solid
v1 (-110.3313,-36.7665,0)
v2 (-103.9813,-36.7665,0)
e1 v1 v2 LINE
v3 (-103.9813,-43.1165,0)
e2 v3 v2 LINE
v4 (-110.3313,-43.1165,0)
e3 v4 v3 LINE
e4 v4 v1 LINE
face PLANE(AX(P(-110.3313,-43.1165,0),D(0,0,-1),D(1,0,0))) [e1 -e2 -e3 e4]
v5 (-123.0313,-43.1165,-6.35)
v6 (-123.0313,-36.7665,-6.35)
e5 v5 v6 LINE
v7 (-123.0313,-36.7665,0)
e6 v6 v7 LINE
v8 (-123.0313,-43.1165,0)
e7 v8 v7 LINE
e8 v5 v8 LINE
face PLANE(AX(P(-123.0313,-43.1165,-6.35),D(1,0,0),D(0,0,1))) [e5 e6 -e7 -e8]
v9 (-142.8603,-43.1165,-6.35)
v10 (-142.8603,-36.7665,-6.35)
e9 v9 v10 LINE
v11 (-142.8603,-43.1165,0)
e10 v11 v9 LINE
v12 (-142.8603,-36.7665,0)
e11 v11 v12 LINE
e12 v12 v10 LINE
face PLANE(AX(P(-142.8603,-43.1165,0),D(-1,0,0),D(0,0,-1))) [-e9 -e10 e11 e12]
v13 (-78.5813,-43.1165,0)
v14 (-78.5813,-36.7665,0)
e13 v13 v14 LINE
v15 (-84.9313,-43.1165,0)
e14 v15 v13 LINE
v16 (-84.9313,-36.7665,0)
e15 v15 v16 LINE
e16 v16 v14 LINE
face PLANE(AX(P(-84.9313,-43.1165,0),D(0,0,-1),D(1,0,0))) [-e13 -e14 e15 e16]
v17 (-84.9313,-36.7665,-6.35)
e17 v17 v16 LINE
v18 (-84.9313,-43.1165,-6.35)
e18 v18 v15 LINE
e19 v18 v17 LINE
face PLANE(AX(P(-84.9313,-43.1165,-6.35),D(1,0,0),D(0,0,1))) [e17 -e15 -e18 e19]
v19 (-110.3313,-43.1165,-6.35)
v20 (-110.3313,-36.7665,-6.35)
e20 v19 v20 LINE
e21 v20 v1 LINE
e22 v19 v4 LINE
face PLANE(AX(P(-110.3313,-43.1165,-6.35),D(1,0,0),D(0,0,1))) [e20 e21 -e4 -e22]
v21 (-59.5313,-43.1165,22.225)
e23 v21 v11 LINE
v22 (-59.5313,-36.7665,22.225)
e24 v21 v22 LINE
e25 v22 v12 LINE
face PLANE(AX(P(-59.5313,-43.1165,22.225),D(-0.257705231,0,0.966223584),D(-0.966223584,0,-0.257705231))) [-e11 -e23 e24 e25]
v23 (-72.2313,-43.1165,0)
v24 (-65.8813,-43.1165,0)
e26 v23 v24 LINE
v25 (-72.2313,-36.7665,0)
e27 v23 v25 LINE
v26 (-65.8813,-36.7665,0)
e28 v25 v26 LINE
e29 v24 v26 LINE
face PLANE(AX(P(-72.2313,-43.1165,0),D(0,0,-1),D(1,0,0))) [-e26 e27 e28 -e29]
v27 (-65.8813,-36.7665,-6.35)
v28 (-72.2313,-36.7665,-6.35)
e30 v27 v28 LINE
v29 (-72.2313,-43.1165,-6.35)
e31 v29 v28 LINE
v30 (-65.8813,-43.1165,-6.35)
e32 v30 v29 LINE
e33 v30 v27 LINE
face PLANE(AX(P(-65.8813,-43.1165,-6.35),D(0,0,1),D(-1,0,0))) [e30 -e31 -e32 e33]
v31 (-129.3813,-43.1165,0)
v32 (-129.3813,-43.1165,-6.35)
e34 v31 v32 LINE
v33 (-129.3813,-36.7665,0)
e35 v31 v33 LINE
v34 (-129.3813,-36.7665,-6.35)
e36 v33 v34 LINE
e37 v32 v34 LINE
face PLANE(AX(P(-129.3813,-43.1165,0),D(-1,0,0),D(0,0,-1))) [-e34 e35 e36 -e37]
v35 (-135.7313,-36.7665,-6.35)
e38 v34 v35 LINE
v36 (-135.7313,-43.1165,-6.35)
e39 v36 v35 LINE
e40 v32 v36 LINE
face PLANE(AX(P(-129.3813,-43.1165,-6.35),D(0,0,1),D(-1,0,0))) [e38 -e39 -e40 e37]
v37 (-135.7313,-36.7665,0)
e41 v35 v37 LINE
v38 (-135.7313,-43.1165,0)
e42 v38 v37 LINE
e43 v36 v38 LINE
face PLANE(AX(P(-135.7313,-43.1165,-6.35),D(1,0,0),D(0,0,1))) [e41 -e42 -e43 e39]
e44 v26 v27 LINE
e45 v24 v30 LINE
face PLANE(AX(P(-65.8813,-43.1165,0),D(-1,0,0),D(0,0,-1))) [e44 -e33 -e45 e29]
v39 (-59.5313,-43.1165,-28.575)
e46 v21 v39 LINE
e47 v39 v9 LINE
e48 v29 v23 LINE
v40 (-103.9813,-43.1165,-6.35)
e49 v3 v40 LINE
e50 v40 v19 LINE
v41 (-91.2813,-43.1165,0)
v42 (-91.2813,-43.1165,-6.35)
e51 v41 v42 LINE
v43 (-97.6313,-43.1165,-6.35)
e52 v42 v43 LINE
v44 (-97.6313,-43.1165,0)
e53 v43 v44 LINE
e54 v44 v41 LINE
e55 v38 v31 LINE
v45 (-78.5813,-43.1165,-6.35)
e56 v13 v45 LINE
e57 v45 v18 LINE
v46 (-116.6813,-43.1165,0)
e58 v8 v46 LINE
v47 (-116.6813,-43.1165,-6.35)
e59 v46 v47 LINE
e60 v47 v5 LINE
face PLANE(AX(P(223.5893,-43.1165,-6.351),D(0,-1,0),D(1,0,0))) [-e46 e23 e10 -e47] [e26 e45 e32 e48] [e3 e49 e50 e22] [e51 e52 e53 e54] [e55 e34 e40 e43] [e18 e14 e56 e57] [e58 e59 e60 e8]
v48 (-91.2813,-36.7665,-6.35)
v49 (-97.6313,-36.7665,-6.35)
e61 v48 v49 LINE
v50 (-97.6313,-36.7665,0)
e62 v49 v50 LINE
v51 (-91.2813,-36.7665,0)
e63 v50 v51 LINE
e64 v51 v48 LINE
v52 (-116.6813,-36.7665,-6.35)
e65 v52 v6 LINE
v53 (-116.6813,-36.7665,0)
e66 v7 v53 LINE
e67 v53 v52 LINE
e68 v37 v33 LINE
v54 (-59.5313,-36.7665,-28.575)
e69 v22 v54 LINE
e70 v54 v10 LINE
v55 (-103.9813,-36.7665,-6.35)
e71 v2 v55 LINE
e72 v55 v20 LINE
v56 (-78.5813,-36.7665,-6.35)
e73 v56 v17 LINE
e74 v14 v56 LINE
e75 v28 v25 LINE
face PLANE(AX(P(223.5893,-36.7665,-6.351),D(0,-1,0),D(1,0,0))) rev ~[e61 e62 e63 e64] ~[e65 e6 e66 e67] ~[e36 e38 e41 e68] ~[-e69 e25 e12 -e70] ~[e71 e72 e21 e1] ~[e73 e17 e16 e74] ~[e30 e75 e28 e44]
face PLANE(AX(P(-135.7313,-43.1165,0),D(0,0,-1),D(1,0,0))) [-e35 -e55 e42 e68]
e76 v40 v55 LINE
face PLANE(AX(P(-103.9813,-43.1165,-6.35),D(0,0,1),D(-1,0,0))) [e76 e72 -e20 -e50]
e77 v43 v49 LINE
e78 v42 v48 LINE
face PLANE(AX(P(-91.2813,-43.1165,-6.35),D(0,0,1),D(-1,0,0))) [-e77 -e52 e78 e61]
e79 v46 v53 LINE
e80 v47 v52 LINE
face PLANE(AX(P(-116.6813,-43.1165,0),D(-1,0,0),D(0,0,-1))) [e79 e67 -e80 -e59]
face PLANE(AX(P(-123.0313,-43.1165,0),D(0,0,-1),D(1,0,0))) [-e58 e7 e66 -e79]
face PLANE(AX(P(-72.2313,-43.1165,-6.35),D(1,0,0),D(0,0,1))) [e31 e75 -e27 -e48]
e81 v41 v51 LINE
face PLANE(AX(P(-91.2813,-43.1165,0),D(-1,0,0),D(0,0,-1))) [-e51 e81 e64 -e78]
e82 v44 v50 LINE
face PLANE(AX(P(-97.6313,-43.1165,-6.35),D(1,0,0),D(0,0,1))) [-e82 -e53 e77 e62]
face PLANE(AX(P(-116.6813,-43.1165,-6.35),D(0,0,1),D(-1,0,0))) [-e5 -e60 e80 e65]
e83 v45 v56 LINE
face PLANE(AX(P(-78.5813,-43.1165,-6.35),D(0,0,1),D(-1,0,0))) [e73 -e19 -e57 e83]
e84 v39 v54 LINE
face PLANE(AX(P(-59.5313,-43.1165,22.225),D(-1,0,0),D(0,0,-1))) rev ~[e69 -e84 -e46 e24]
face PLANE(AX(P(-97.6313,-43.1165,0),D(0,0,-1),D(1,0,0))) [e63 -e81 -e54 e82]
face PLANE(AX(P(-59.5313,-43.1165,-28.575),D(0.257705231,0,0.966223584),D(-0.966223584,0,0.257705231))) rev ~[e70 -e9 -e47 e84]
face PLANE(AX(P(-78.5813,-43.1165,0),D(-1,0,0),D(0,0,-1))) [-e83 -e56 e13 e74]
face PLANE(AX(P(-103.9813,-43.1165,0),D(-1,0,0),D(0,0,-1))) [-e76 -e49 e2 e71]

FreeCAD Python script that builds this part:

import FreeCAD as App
import Part
import Sketcher
Q = App.Units.Quantity

doc = App.newDocument("Part")
params = doc.addObject("Spreadsheet::Sheet", "Params")
for row, (alias, value) in enumerate([
    ("sketch1_height", "2 in"),
    ("sketch1_width", "0.25 in"),
    ("pad1_length", "0.25 in"),
], start=1):
    params.set(f"A{row}", alias)
    params.set(f"B{row}", "=" + value)
    params.setAlias(f"B{row}", alias)

body = doc.addObject("PartDesign::Body", "Body")

# Sketch on XZ plane
sketch1 = body.newObject("Sketcher::SketchObject", "Sketch")
sketch1.AttachmentSupport = (doc.getObject("XZ_Plane"), [""])
sketch1.MapMode = "FlatFace"
sketch1.AttachmentOffset = App.Placement(App.Vector(0, 0, 1.6975 * 25.4), App.Rotation())
sketch1.addGeometry(Part.LineSegment(App.Vector(-60, -29, 0), App.Vector(-60, 22, 0)), False)
sketch1.addGeometry(Part.LineSegment(App.Vector(-60, 22, 0), App.Vector(-143, 0, 0)), False)
sketch1.addGeometry(Part.LineSegment(App.Vector(-143, 0, 0), App.Vector(-143, -6, 0)), False)
sketch1.addGeometry(Part.LineSegment(App.Vector(-143, -6, 0), App.Vector(-60, -29, 0)), False)
sketch1.addGeometry(Part.LineSegment(App.Vector(-129, 0, 0), App.Vector(-129, -6, 0)), False)
sketch1.addGeometry(Part.LineSegment(App.Vector(-129, -6, 0), App.Vector(-136, -6, 0)), False)
sketch1.addGeometry(Part.LineSegment(App.Vector(-136, -6, 0), App.Vector(-136, 0, 0)), False)
sketch1.addGeometry(Part.LineSegment(App.Vector(-136, 0, 0), App.Vector(-129, 0, 0)), False)
sketch1.addGeometry(Part.LineSegment(App.Vector(-117, 0, 0), App.Vector(-117, -6, 0)), False)
sketch1.addGeometry(Part.LineSegment(App.Vector(-117, -6, 0), App.Vector(-123, -6, 0)), False)
sketch1.addGeometry(Part.LineSegment(App.Vector(-123, -6, 0), App.Vector(-123, 0, 0)), False)
sketch1.addGeometry(Part.LineSegment(App.Vector(-123, 0, 0), App.Vector(-117, 0, 0)), False)
sketch1.addGeometry(Part.LineSegment(App.Vector(-104, 0, 0), App.Vector(-104, -6, 0)), False)
sketch1.addGeometry(Part.LineSegment(App.Vector(-104, -6, 0), App.Vector(-110, -6, 0)), False)
sketch1.addGeometry(Part.LineSegment(App.Vector(-110, -6, 0), App.Vector(-110, 0, 0)), False)
sketch1.addGeometry(Part.LineSegment(App.Vector(-110, 0, 0), App.Vector(-104, 0, 0)), False)
sketch1.addGeometry(Part.LineSegment(App.Vector(-91, 0, 0), App.Vector(-91, -6, 0)), False)
sketch1.addGeometry(Part.LineSegment(App.Vector(-91, -6, 0), App.Vector(-98, -6, 0)), False)
sketch1.addGeometry(Part.LineSegment(App.Vector(-98, -6, 0), App.Vector(-98, 0, 0)), False)
sketch1.addGeometry(Part.LineSegment(App.Vector(-98, 0, 0), App.Vector(-91, 0, 0)), False)
sketch1.addGeometry(Part.LineSegment(App.Vector(-79, 0, 0), App.Vector(-79, -6, 0)), False)
sketch1.addGeometry(Part.LineSegment(App.Vector(-79, -6, 0), App.Vector(-85, -6, 0)), False)
sketch1.addGeometry(Part.LineSegment(App.Vector(-85, -6, 0), App.Vector(-85, 0, 0)), False)
sketch1.addGeometry(Part.LineSegment(App.Vector(-85, 0, 0), App.Vector(-79, 0, 0)), False)
sketch1.addGeometry(Part.LineSegment(App.Vector(-66, 0, 0), App.Vector(-66, -6, 0)), False)
sketch1.addGeometry(Part.LineSegment(App.Vector(-66, -6, 0), App.Vector(-72, -6, 0)), False)
sketch1.addGeometry(Part.LineSegment(App.Vector(-72, -6, 0), App.Vector(-72, 0, 0)), False)
sketch1.addGeometry(Part.LineSegment(App.Vector(-72, 0, 0), App.Vector(-66, 0, 0)), False)
sketch1.addConstraint(Sketcher.Constraint("Coincident", 0, 2, 1, 1))
sketch1.addConstraint(Sketcher.Constraint("Coincident", 1, 2, 2, 1))
sketch1.addConstraint(Sketcher.Constraint("Coincident", 2, 2, 3, 1))
sketch1.addConstraint(Sketcher.Constraint("Coincident", 3, 2, 0, 1))
sketch1.addConstraint(Sketcher.Constraint("Coincident", 4, 2, 5, 1))
sketch1.addConstraint(Sketcher.Constraint("Coincident", 5, 2, 6, 1))
sketch1.addConstraint(Sketcher.Constraint("Coincident", 6, 2, 7, 1))
sketch1.addConstraint(Sketcher.Constraint("Coincident", 7, 2, 4, 1))
sketch1.addConstraint(Sketcher.Constraint("Coincident", 8, 2, 9, 1))
sketch1.addConstraint(Sketcher.Constraint("Coincident", 9, 2, 10, 1))
sketch1.addConstraint(Sketcher.Constraint("Coincident", 10, 2, 11, 1))
sketch1.addConstraint(Sketcher.Constraint("Coincident", 11, 2, 8, 1))
sketch1.addConstraint(Sketcher.Constraint("Coincident", 12, 2, 13, 1))
sketch1.addConstraint(Sketcher.Constraint("Coincident", 13, 2, 14, 1))
sketch1.addConstraint(Sketcher.Constraint("Coincident", 14, 2, 15, 1))
sketch1.addConstraint(Sketcher.Constraint("Coincident", 15, 2, 12, 1))
sketch1.addConstraint(Sketcher.Constraint("Coincident", 16, 2, 17, 1))
sketch1.addConstraint(Sketcher.Constraint("Coincident", 17, 2, 18, 1))
sketch1.addConstraint(Sketcher.Constraint("Coincident", 18, 2, 19, 1))
sketch1.addConstraint(Sketcher.Constraint("Coincident", 19, 2, 16, 1))
sketch1.addConstraint(Sketcher.Constraint("Coincident", 20, 2, 21, 1))
sketch1.addConstraint(Sketcher.Constraint("Coincident", 21, 2, 22, 1))
sketch1.addConstraint(Sketcher.Constraint("Coincident", 22, 2, 23, 1))
sketch1.addConstraint(Sketcher.Constraint("Coincident", 23, 2, 20, 1))
sketch1.addConstraint(Sketcher.Constraint("Coincident", 24, 2, 25, 1))
sketch1.addConstraint(Sketcher.Constraint("Coincident", 25, 2, 26, 1))
sketch1.addConstraint(Sketcher.Constraint("Coincident", 26, 2, 27, 1))
sketch1.addConstraint(Sketcher.Constraint("Coincident", 27, 2, 24, 1))
sketch1.addConstraint(Sketcher.Constraint("Vertical", 0))
sketch1.addConstraint(Sketcher.Constraint("Vertical", 2))
sketch1.addConstraint(Sketcher.Constraint("Vertical", 4))
sketch1.addConstraint(Sketcher.Constraint("Horizontal", 5))
sketch1.addConstraint(Sketcher.Constraint("Vertical", 6))
sketch1.addConstraint(Sketcher.Constraint("Horizontal", 7))
sketch1.addConstraint(Sketcher.Constraint("Vertical", 8))
sketch1.addConstraint(Sketcher.Constraint("Horizontal", 9))
sketch1.addConstraint(Sketcher.Constraint("Vertical", 10))
sketch1.addConstraint(Sketcher.Constraint("Horizontal", 11))
sketch1.addConstraint(Sketcher.Constraint("Vertical", 12))
sketch1.addConstraint(Sketcher.Constraint("Horizontal", 13))
sketch1.addConstraint(Sketcher.Constraint("Vertical", 14))
sketch1.addConstraint(Sketcher.Constraint("Horizontal", 15))
sketch1.addConstraint(Sketcher.Constraint("Vertical", 16))
sketch1.addConstraint(Sketcher.Constraint("Horizontal", 17))
sketch1.addConstraint(Sketcher.Constraint("Vertical", 18))
sketch1.addConstraint(Sketcher.Constraint("Horizontal", 19))
sketch1.addConstraint(Sketcher.Constraint("Vertical", 20))
sketch1.addConstraint(Sketcher.Constraint("Horizontal", 21))
sketch1.addConstraint(Sketcher.Constraint("Vertical", 22))
sketch1.addConstraint(Sketcher.Constraint("Horizontal", 23))
sketch1.addConstraint(Sketcher.Constraint("Vertical", 24))
sketch1.addConstraint(Sketcher.Constraint("Horizontal", 25))
sketch1.addConstraint(Sketcher.Constraint("Vertical", 26))
sketch1.addConstraint(Sketcher.Constraint("Horizontal", 27))
sketch1.addConstraint(Sketcher.Constraint("PointOnObject", 1, 2, -1))
sketch1.addConstraint(Sketcher.Constraint("PointOnObject", 6, 2, -1))
sketch1.addConstraint(Sketcher.Constraint("PointOnObject", 10, 2, -1))
sketch1.addConstraint(Sketcher.Constraint("PointOnObject", 14, 2, -1))
sketch1.addConstraint(Sketcher.Constraint("PointOnObject", 18, 2, -1))
sketch1.addConstraint(Sketcher.Constraint("PointOnObject", 22, 2, -1))
sketch1.addConstraint(Sketcher.Constraint("PointOnObject", 26, 2, -1))
sketch1.addConstraint(Sketcher.Constraint("Horizontal", 2, 2, 4, 2))
sketch1.addConstraint(Sketcher.Constraint("Horizontal", 5, 2, 8, 2))
sketch1.addConstraint(Sketcher.Constraint("Horizontal", 9, 2, 12, 2))
sketch1.addConstraint(Sketcher.Constraint("Horizontal", 13, 2, 16, 2))
sketch1.addConstraint(Sketcher.Constraint("Horizontal", 17, 2, 20, 2))
sketch1.addConstraint(Sketcher.Constraint("Horizontal", 21, 2, 24, 2))
sketch1.addConstraint(Sketcher.Constraint("Equal", 7, 9))
sketch1.addConstraint(Sketcher.Constraint("Equal", 11, 13))
sketch1.addConstraint(Sketcher.Constraint("Equal", 15, 17))
sketch1.addConstraint(Sketcher.Constraint("Equal", 19, 21))
sketch1.addConstraint(Sketcher.Constraint("Equal", 23, 25))
sketch1.addConstraint(Sketcher.Constraint("Equal", 27, 2))
sketch1.addConstraint(Sketcher.Constraint("Equal", 1, 3))
sketch1.addConstraint(Sketcher.Constraint("DistanceX", 4, 2, 8, 2, Q("0.5 in")))
sketch1.addConstraint(Sketcher.Constraint("DistanceX", 8, 2, 12, 2, Q("0.5 in")))
sketch1.addConstraint(Sketcher.Constraint("DistanceX", 12, 2, 16, 2, Q("0.5 in")))
sketch1.addConstraint(Sketcher.Constraint("DistanceX", 16, 2, 20, 2, Q("0.5 in")))
sketch1.addConstraint(Sketcher.Constraint("DistanceX", 20, 2, 24, 2, Q("0.5 in")))
sketch1.addConstraint(Sketcher.Constraint("DistanceY", 0, 1, 0, 2, Q("2 in")))
sketch1.addConstraint(Sketcher.Constraint("DistanceX", 5, 2, 3, 2, Q("3 in")))
sketch1.addConstraint(Sketcher.Constraint("DistanceX", 5, 2, 5, 1, Q("0.25 in")))
sketch1.addConstraint(Sketcher.Constraint("DistanceX", 0, 2, -1, 1, Q("2.343752 in")))
sketch1.addConstraint(Sketcher.Constraint("Distance", 1, Q("86.242 mm")))
sketch1.setExpression("Constraints[79]", "Params.sketch1_height")
sketch1.setExpression("Constraints[81]", "Params.sketch1_width")
pad1 = body.newObject("PartDesign::Pad", "Pad")
pad1.Profile = sketch1
pad1.setExpression("Length", "Params.pad1_length")
pad1.Reversed = True

doc.recompute()
